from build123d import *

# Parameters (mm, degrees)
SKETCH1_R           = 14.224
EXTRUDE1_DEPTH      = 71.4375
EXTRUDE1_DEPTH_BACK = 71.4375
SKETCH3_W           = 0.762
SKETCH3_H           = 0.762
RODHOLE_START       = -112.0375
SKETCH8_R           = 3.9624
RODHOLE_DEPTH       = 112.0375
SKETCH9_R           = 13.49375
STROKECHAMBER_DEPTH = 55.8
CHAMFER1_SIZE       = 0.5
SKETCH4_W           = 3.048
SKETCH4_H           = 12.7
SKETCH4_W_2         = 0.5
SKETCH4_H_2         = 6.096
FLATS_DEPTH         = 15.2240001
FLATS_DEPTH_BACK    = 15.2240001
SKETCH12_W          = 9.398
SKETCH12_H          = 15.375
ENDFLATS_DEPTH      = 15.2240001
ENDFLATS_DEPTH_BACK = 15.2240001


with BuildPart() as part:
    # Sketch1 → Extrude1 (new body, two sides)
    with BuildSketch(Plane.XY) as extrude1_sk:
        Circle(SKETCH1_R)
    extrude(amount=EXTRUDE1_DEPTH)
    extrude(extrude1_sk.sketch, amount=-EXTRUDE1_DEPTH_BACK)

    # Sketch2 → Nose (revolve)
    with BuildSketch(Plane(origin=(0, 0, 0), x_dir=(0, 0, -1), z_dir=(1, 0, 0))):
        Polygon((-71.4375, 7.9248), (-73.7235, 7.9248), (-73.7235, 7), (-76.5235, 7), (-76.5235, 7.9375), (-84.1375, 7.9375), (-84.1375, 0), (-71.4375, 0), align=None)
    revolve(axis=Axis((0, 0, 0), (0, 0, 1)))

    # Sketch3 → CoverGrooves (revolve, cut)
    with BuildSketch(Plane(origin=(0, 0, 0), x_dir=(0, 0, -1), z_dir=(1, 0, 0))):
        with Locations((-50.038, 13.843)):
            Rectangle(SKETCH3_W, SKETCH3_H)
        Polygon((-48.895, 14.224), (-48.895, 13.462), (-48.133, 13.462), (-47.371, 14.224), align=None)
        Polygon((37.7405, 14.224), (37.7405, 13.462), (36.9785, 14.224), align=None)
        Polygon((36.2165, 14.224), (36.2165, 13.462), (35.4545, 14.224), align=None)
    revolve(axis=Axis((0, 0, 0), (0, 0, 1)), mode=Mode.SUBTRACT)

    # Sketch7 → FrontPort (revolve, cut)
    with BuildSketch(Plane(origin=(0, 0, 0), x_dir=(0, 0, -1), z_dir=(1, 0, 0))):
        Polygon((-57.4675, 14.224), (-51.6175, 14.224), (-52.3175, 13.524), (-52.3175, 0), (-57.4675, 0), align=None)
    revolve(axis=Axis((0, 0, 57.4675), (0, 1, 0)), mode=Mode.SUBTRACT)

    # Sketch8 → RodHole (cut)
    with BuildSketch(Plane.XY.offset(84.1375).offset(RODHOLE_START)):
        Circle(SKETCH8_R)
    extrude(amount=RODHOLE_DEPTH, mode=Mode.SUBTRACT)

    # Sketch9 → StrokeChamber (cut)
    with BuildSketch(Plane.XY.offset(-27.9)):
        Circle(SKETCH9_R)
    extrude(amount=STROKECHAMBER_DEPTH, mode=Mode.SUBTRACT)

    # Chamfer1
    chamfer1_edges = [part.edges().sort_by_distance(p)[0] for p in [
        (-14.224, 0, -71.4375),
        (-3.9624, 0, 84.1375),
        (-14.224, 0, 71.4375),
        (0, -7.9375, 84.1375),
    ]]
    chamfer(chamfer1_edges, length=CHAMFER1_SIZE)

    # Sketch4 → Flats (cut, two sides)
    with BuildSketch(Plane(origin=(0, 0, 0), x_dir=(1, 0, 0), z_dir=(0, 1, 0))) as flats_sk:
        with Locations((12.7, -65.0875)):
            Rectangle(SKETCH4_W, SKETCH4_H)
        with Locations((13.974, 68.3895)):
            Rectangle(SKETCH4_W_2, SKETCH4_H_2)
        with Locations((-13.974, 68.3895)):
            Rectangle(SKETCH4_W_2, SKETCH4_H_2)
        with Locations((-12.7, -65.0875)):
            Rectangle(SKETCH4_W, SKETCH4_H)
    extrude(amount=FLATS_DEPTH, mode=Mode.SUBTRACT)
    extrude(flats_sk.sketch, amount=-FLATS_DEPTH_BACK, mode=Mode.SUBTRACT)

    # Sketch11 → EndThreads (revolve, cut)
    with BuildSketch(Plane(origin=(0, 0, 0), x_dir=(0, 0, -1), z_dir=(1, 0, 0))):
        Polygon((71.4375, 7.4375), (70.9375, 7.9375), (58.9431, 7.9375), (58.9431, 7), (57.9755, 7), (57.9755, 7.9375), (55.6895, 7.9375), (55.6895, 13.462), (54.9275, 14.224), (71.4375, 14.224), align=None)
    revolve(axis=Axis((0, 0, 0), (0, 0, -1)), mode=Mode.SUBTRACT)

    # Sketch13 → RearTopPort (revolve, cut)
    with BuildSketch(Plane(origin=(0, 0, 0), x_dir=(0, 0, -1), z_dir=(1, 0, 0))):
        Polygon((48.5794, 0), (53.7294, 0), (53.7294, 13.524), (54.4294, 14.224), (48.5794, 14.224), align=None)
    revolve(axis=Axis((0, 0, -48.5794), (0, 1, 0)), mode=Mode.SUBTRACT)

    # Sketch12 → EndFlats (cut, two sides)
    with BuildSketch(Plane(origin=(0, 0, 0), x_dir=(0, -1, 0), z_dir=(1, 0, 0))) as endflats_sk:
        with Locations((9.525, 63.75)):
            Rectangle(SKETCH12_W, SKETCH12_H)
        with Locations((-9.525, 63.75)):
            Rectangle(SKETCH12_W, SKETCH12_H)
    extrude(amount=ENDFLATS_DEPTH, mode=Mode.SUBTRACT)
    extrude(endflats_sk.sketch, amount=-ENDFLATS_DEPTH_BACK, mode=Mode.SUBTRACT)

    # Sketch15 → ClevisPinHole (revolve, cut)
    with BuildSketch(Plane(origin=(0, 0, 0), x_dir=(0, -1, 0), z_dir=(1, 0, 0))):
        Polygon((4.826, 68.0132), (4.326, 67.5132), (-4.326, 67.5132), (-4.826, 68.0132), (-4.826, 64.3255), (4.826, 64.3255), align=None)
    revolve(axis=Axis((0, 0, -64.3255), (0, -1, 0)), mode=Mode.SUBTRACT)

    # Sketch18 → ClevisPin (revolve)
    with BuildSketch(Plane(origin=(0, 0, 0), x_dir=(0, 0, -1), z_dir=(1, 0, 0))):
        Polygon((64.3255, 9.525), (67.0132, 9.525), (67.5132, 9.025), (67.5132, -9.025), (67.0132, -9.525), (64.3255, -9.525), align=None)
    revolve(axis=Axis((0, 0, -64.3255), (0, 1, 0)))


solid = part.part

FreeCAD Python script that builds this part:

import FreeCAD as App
import Part
import Sketcher
from FreeCAD import Vector
Q = App.Units.Quantity


def edges_at(feature, points):
    """Names of the edges that pass closest to the given points."""
    edges = feature.Shape.Edges
    near = lambda p: min(range(len(edges)), key=lambda i: edges[i].distToShape(Part.Vertex(*p))[0])
    return sorted({f"Edge{near(p) + 1}" for p in points})

doc = App.newDocument("Part")
params = doc.addObject("Spreadsheet::Sheet", "Params")
for row, (alias, value) in enumerate([
    ("sketch1_diameter", "1.12 in"),
    ("pad1_length", "2.8125 in"),
    ("pad1_length2", "2.8125 in"),
    ("sketch2_height", "0.5 in"),
    ("sketch2_height2", "0.09 in"),
    ("sketch2_width", "0.3125 in"),
    ("sketch2_width2", "0.312 in"),
    ("revolution_angle", "360 deg"),
    ("sketch3_width", "0.03 in"),
    ("groove_angle", "360 deg"),
    ("sketch4_width", "0.56 in"),
    ("groove2_angle", "360 deg"),
    ("sketch5_diameter", "0.312 in"),
    ("pocket1_length", "112.0375 mm"),
    ("sketch6_diameter", "1.0625 in"),
    ("pocket2_length", "55.8 mm"),
    ("chamfer_size", "0.5 mm"),
    ("sketch7_height", "0.5 in"),
    ("sketch7_width", "0.12 in"),
    ("sketch7_height2", "0.24 in"),
    ("sketch8_height", "0.65 in"),
    ("sketch8_height2", "0.09 in"),
    ("groove3_angle", "360 deg"),
    ("sketch9_width", "0.56 in"),
    ("groove4_angle", "360 deg"),
    ("sketch10_width", "0.37 in"),
    ("sketch11_width", "0.38 in"),
    ("groove5_angle", "360 deg"),
    ("sketch12_width", "0.75 in"),
    ("revolution2_angle", "360 deg"),
], start=1):
    params.set(f"A{row}", alias)
    params.set(f"B{row}", "=" + value)
    params.setAlias(f"B{row}", alias)

body = doc.addObject("PartDesign::Body", "Body")

sketch1 = body.newObject("Sketcher::SketchObject", "Sketch")
sketch1.AttachmentSupport = (doc.getObject("XY_Plane"), [""])
sketch1.MapMode = "FlatFace"
sketch1.addGeometry(Part.Circle(Vector(0, 0, 0), Vector(0, 0, 1), 14.224), False)
sketch1.addConstraint(Sketcher.Constraint("Coincident", 0, 3, -1, 1))
sketch1.addConstraint(Sketcher.Constraint("Diameter", 0, Q("1.12 in")))
sketch1.setExpression("Constraints[1]", "Params.sketch1_diameter")
pad1 = body.newObject("PartDesign::Pad", "Pad")
pad1.Profile = sketch1
pad1.Type = "TwoLengths"
pad1.setExpression("Length", "Params.pad1_length")
pad1.setExpression("Length2", "Params.pad1_length2")

sketch2 = body.newObject("Sketcher::SketchObject", "Sketch001")
sketch2.AttachmentSupport = (doc.getObject("YZ_Plane"), [""])
sketch2.MapMode = "FlatFace"
sketch2.addGeometry(Part.LineSegment(Vector(7.9248, 71.4375, 0), Vector(7.9248, 73.7235, 0)), False)
sketch2.addGeometry(Part.LineSegment(Vector(7.9248, 73.7235, 0), Vector(7, 73.7235, 0)), False)
sketch2.addGeometry(Part.LineSegment(Vector(7, 73.7235, 0), Vector(7, 76.5235, 0)), False)
sketch2.addGeometry(Part.LineSegment(Vector(7, 76.5235, 0), Vector(7.9375, 76.5235, 0)), False)
sketch2.addGeometry(Part.LineSegment(Vector(7.9375, 76.5235, 0), Vector(7.9375, 84.1375, 0)), False)
sketch2.addGeometry(Part.LineSegment(Vector(7.9375, 84.1375, 0), Vector(0, 84.1375, 0)), False)
sketch2.addGeometry(Part.LineSegment(Vector(0, 84.1375, 0), Vector(0, 71.4375, 0)), False)
sketch2.addGeometry(Part.LineSegment(Vector(0, 71.4375, 0), Vector(7.9248, 71.4375, 0)), False)
sketch2.addConstraint(Sketcher.Constraint("Coincident", 0, 2, 1, 1))
sketch2.addConstraint(Sketcher.Constraint("Coincident", 1, 2, 2, 1))
sketch2.addConstraint(Sketcher.Constraint("Coincident", 2, 2, 3, 1))
sketch2.addConstraint(Sketcher.Constraint("Coincident", 3, 2, 4, 1))
sketch2.addConstraint(Sketcher.Constraint("Coincident", 4, 2, 5, 1))
sketch2.addConstraint(Sketcher.Constraint("Coincident", 5, 2, 6, 1))
sketch2.addConstraint(Sketcher.Constraint("Coincident", 6, 2, 7, 1))
sketch2.addConstraint(Sketcher.Constraint("Coincident", 7, 2, 0, 1))
sketch2.addConstraint(Sketcher.Constraint("Vertical", 0))
sketch2.addConstraint(Sketcher.Constraint("Horizontal", 1))
sketch2.addConstraint(Sketcher.Constraint("Vertical", 2))
sketch2.addConstraint(Sketcher.Constraint("Horizontal", 3))
sketch2.addConstraint(Sketcher.Constraint("Vertical", 4))
sketch2.addConstraint(Sketcher.Constraint("Horizontal", 5))
sketch2.addConstraint(Sketcher.Constraint("Vertical", 6))
sketch2.addConstraint(Sketcher.Constraint("Horizontal", 7))
sketch2.addConstraint(Sketcher.Constraint("PointOnObject", 5, 2, -2))
sketch2.addConstraint(Sketcher.Constraint("DistanceY", 6, 2, 6, 1, Q("0.5 in")))
sketch2.addConstraint(Sketcher.Constraint("DistanceY", 0, 1, 0, 2, Q("0.09 in")))
sketch2.addConstraint(Sketcher.Constraint("DistanceX", 5, 2, 5, 1, Q("0.3125 in")))
sketch2.addConstraint(Sketcher.Constraint("DistanceX", 7, 1, 7, 2, Q("0.312 in")))
sketch2.addConstraint(Sketcher.Constraint("DistanceY", -1, 1, 4, 2, Q("3.3125 in")))
sketch2.addConstraint(Sketcher.Constraint("DistanceX", 1, 2, 1, 1, 0.9248))
sketch2.addConstraint(Sketcher.Constraint("DistanceY", 2, 1, 2, 2, 2.8))
sketch2.setExpression("Constraints[17]", "Params.sketch2_height")
sketch2.setExpression("Constraints[18]", "Params.sketch2_height2")
sketch2.setExpression("Constraints[19]", "Params.sketch2_width")
sketch2.setExpression("Constraints[20]", "Params.sketch2_width2")
revolution = body.newObject("PartDesign::Revolution", "Revolution")
revolution.Profile = sketch2
revolution.ReferenceAxis = (sketch2, ["V_Axis"])
revolution.setExpression("Angle", "Params.revolution_angle")

sketch3 = body.newObject("Sketcher::SketchObject", "Sketch002")
sketch3.AttachmentSupport = (doc.getObject("YZ_Plane"), [""])
sketch3.MapMode = "FlatFace"
sketch3.addGeometry(Part.LineSegment(Vector(14.224, 50.419, 0), Vector(13.462, 50.419, 0)), False)
sketch3.addGeometry(Part.LineSegment(Vector(13.462, 50.419, 0), Vector(13.462, 49.657, 0)), False)
sketch3.addGeometry(Part.LineSegment(Vector(13.462, 49.657, 0), Vector(14.224, 49.657, 0)), False)
sketch3.addGeometry(Part.LineSegment(Vector(14.224, 49.657, 0), Vector(14.224, 50.419, 0)), False)
sketch3.addGeometry(Part.LineSegment(Vector(14.224, 48.895, 0), Vector(13.462, 48.895, 0)), False)
sketch3.addGeometry(Part.LineSegment(Vector(13.462, 48.895, 0), Vector(13.462, 48.133, 0)), False)
sketch3.addGeometry(Part.LineSegment(Vector(13.462, 48.133, 0), Vector(14.224, 47.371, 0)), False)
sketch3.addGeometry(Part.LineSegment(Vector(14.224, 47.371, 0), Vector(14.224, 48.895, 0)), False)
sketch3.addGeometry(Part.LineSegment(Vector(13.462, -37.7405, 0), Vector(14.224, -37.7405, 0)), False)
sketch3.addGeometry(Part.LineSegment(Vector(14.224, -37.7405, 0), Vector(14.224, -36.9785, 0)), False)
sketch3.addGeometry(Part.LineSegment(Vector(14.224, -36.9785, 0), Vector(13.462, -37.7405, 0)), False)
sketch3.addGeometry(Part.LineSegment(Vector(13.462, -36.2165, 0), Vector(14.224, -36.2165, 0)), False)
sketch3.addGeometry(Part.LineSegment(Vector(14.224, -36.2165, 0), Vector(14.224, -35.4545, 0)), False)
sketch3.addGeometry(Part.LineSegment(Vector(14.224, -35.4545, 0), Vector(13.462, -36.2165, 0)), False)
sketch3.addConstraint(Sketcher.Constraint("Coincident", 0, 2, 1, 1))
sketch3.addConstraint(Sketcher.Constraint("Coincident", 1, 2, 2, 1))
sketch3.addConstraint(Sketcher.Constraint("Coincident", 2, 2, 3, 1))
sketch3.addConstraint(Sketcher.Constraint("Coincident", 3, 2, 0, 1))
sketch3.addConstraint(Sketcher.Constraint("Coincident", 4, 2, 5, 1))
sketch3.addConstraint(Sketcher.Constraint("Coincident", 5, 2, 6, 1))
sketch3.addConstraint(Sketcher.Constraint("Coincident", 6, 2, 7, 1))
sketch3.addConstraint(Sketcher.Constraint("Coincident", 7, 2, 4, 1))
sketch3.addConstraint(Sketcher.Constraint("Coincident", 8, 2, 9, 1))
sketch3.addConstraint(Sketcher.Constraint("Coincident", 9, 2, 10, 1))
sketch3.addConstraint(Sketcher.Constraint("Coincident", 10, 2, 8, 1))
sketch3.addConstraint(Sketcher.Constraint("Coincident", 11, 2, 12, 1))
sketch3.addConstraint(Sketcher.Constraint("Coincident", 12, 2, 13, 1))
sketch3.addConstraint(Sketcher.Constraint("Coincident", 13, 2, 11, 1))
sketch3.addConstraint(Sketcher.Constraint("Horizontal", 0))
sketch3.addConstraint(Sketcher.Constraint("Vertical", 1))
sketch3.addConstraint(Sketcher.Constraint("Horizontal", 2))
sketch3.addConstraint(Sketcher.Constraint("Vertical", 3))
sketch3.addConstraint(Sketcher.Constraint("Horizontal", 4))
sketch3.addConstraint(Sketcher.Constraint("Vertical", 5))
sketch3.addConstraint(Sketcher.Constraint("Vertical", 7))
sketch3.addConstraint(Sketcher.Constraint("Horizontal", 8))
sketch3.addConstraint(Sketcher.Constraint("Vertical", 9))
sketch3.addConstraint(Sketcher.Constraint("Horizontal", 11))
sketch3.addConstraint(Sketcher.Constraint("Vertical", 12))
sketch3.addConstraint(Sketcher.Constraint("Perpendicular", 6, 10))
sketch3.addConstraint(Sketcher.Constraint("Parallel", 10, 13))
sketch3.addConstraint(Sketcher.Constraint("Vertical", 1, 2, 4, 2))
sketch3.addConstraint(Sketcher.Constraint("Vertical", 3, 2, 6, 2))
sketch3.addConstraint(Sketcher.Constraint("Vertical", 7, 2, 8, 2))
sketch3.addConstraint(Sketcher.Constraint("Vertical", 5, 2, 10, 2))
sketch3.addConstraint(Sketcher.Constraint("Vertical", 9, 2, 11, 2))
sketch3.addConstraint(Sketcher.Constraint("Vertical", 10, 2, 13, 2))
sketch3.addConstraint(Sketcher.Constraint("Equal", 11, 1))
sketch3.addConstraint(Sketcher.Constraint("Equal", 3, 5))
sketch3.addConstraint(Sketcher.Constraint("Equal", 5, 9))
sketch3.addConstraint(Sketcher.Constraint("DistanceX", 0, 2, 0, 1, Q("0.03 in")))
sketch3.addConstraint(Sketcher.Constraint("DistanceX", -1, 1, 0, 2, Q("0.53 in")))
sketch3.addConstraint(Sketcher.Constraint("DistanceY", 4, 2, 1, 2, Q("0.03 in")))
sketch3.addConstraint(Sketcher.Constraint("DistanceY", 9, 2, 11, 2, Q("0.03 in")))
sketch3.addConstraint(Sketcher.Constraint("DistanceY", -1, 1, 0, 2, Q("1.985 in")))
sketch3.addConstraint(Sketcher.Constraint("DistanceY", 8, 2, -1, 1, 37.7405))
sketch3.setExpression("Constraints[36]", "Params.sketch3_width")
groove = body.newObject("PartDesign::Groove", "Groove")
groove.Profile = sketch3
groove.ReferenceAxis = (sketch3, ["V_Axis"])
groove.setExpression("Angle", "Params.groove_angle")

sketch4 = body.newObject("Sketcher::SketchObject", "Sketch003")
sketch4.AttachmentSupport = (doc.getObject("YZ_Plane"), [""])
sketch4.MapMode = "FlatFace"
sketch4.addGeometry(Part.LineSegment(Vector(14.224, 51.6175, 0), Vector(14.224, 57.4675, 0)), False)
sketch4.addGeometry(Part.LineSegment(Vector(14.224, 57.4675, 0), Vector(0, 57.4675, 0)), False)
sketch4.addGeometry(Part.LineSegment(Vector(0, 57.4675, 0), Vector(0, 52.3175, 0)), False)
sketch4.addGeometry(Part.LineSegment(Vector(0, 52.3175, 0), Vector(13.524, 52.3175, 0)), False)
sketch4.addGeometry(Part.LineSegment(Vector(13.524, 52.3175, 0), Vector(14.224, 51.6175, 0)), False)
sketch4.addGeometry(Part.LineSegment(Vector(0, 57.4675, 0), Vector(14.224, 57.4675, 0)), True)
sketch4.addConstraint(Sketcher.Constraint("Coincident", 0, 2, 1, 1))
sketch4.addConstraint(Sketcher.Constraint("Coincident", 1, 2, 2, 1))
sketch4.addConstraint(Sketcher.Constraint("Coincident", 2, 2, 3, 1))
sketch4.addConstraint(Sketcher.Constraint("Coincident", 3, 2, 4, 1))
sketch4.addConstraint(Sketcher.Constraint("Coincident", 4, 2, 0, 1))
sketch4.addConstraint(Sketcher.Constraint("Vertical", 0))
sketch4.addConstraint(Sketcher.Constraint("Horizontal", 1))
sketch4.addConstraint(Sketcher.Constraint("Vertical", 2))
sketch4.addConstraint(Sketcher.Constraint("Horizontal", 3))
sketch4.addConstraint(Sketcher.Constraint("Horizontal", 5))
sketch4.addConstraint(Sketcher.Constraint("Coincident", 5, 1, 1, 2))
sketch4.addConstraint(Sketcher.Constraint("PointOnObject", 1, 2, -2))
sketch4.addConstraint(Sketcher.Constraint("Vertical", 4, 2, 5, 2))
sketch4.addConstraint(Sketcher.Constraint("Angle", 4, Q("-45 deg")))
sketch4.addConstraint(Sketcher.Constraint("DistanceX", 1, 2, 1, 1, Q("0.56 in")))
sketch4.addConstraint(Sketcher.Constraint("DistanceX", 3, 1, 3, 2, 13.524))
sketch4.addConstraint(Sketcher.Constraint("DistanceY", 0, 1, 0, 2, 5.85))
sketch4.addConstraint(Sketcher.Constraint("DistanceY", -1, 1, 0, 2, Q("2.2625 in")))
sketch4.setExpression("Constraints[14]", "Params.sketch4_width")
groove2 = body.newObject("PartDesign::Groove", "Groove001")
groove2.Profile = sketch4
groove2.ReferenceAxis = (sketch4, ["Axis0"])
groove2.setExpression("Angle", "Params.groove2_angle")

sketch5 = body.newObject("Sketcher::SketchObject", "Sketch004")
sketch5.AttachmentSupport = (doc.getObject("XY_Plane"), [""])
sketch5.MapMode = "FlatFace"
sketch5.AttachmentOffset = App.Placement(Vector(0, 0, -27.9), App.Rotation())
sketch5.addGeometry(Part.Circle(Vector(0, 0, 0), Vector(0, 0, 1), 3.9624), False)
sketch5.addConstraint(Sketcher.Constraint("Coincident", 0, 3, -1, 1))
sketch5.addConstraint(Sketcher.Constraint("Diameter", 0, Q("0.312 in")))
sketch5.setExpression("Constraints[1]", "Params.sketch5_diameter")
pocket1 = body.newObject("PartDesign::Pocket", "Pocket")
pocket1.Profile = sketch5
pocket1.setExpression("Length", "Params.pocket1_length")
pocket1.Reversed = True

sketch6 = body.newObject("Sketcher::SketchObject", "Sketch005")
sketch6.AttachmentSupport = (doc.getObject("XY_Plane"), [""])
sketch6.MapMode = "FlatFace"
sketch6.AttachmentOffset = App.Placement(Vector(0, 0, -27.9), App.Rotation())
sketch6.addGeometry(Part.Circle(Vector(0, 0, 0), Vector(0, 0, 1), 13.49375), False)
sketch6.addConstraint(Sketcher.Constraint("Coincident", 0, 3, -1, 1))
sketch6.addConstraint(Sketcher.Constraint("Diameter", 0, Q("1.0625 in")))
sketch6.setExpression("Constraints[1]", "Params.sketch6_diameter")
pocket2 = body.newObject("PartDesign::Pocket", "Pocket001")
pocket2.Profile = sketch6
pocket2.setExpression("Length", "Params.pocket2_length")
pocket2.Reversed = True
doc.recompute()

chamfer = body.newObject("PartDesign::Chamfer", "Chamfer")
chamfer.Base = (pocket2, edges_at(pocket2, [
    (-14.224, 0, -71.438),
    (-3.962, 0, 84.138),
    (-14.224, 0, 71.438),
    (0, -7.938, 84.138),
]))
chamfer.setExpression("Size", "Params.chamfer_size")

sketch7 = body.newObject("Sketcher::SketchObject", "Sketch006")
sketch7.AttachmentSupport = (doc.getObject("XZ_Plane"), [""])
sketch7.MapMode = "FlatFace"
sketch7.addGeometry(Part.LineSegment(Vector(11.176, 58.7375, 0), Vector(11.176, 71.4375, 0)), False)
sketch7.addGeometry(Part.LineSegment(Vector(11.176, 71.4375, 0), Vector(14.224, 71.4375, 0)), False)
sketch7.addGeometry(Part.LineSegment(Vector(14.224, 71.4375, 0), Vector(14.224, 58.7375, 0)), False)
sketch7.addGeometry(Part.LineSegment(Vector(14.224, 58.7375, 0), Vector(11.176, 58.7375, 0)), False)
sketch7.addGeometry(Part.LineSegment(Vector(13.724, -71.4375, 0), Vector(13.724, -65.3415, 0)), False)
sketch7.addGeometry(Part.LineSegment(Vector(13.724, -65.3415, 0), Vector(14.224, -65.3415, 0)), False)
sketch7.addGeometry(Part.LineSegment(Vector(14.224, -65.3415, 0), Vector(14.224, -71.4375, 0)), False)
sketch7.addGeometry(Part.LineSegment(Vector(14.224, -71.4375, 0), Vector(13.724, -71.4375, 0)), False)
sketch7.addGeometry(Part.LineSegment(Vector(-14.224, -71.4375, 0), Vector(-14.224, -65.3415, 0)), False)
sketch7.addGeometry(Part.LineSegment(Vector(-14.224, -65.3415, 0), Vector(-13.724, -65.3415, 0)), False)
sketch7.addGeometry(Part.LineSegment(Vector(-13.724, -65.3415, 0), Vector(-13.724, -71.4375, 0)), False)
sketch7.addGeometry(Part.LineSegment(Vector(-13.724, -71.4375, 0), Vector(-14.224, -71.4375, 0)), False)
sketch7.addGeometry(Part.LineSegment(Vector(-14.224, 58.7375, 0), Vector(-14.224, 71.4375, 0)), False)
sketch7.addGeometry(Part.LineSegment(Vector(-14.224, 71.4375, 0), Vector(-11.176, 71.4375, 0)), False)
sketch7.addGeometry(Part.LineSegment(Vector(-11.176, 71.4375, 0), Vector(-11.176, 58.7375, 0)), False)
sketch7.addGeometry(Part.LineSegment(Vector(-11.176, 58.7375, 0), Vector(-14.224, 58.7375, 0)), False)
sketch7.addConstraint(Sketcher.Constraint("Coincident", 0, 2, 1, 1))
sketch7.addConstraint(Sketcher.Constraint("Coincident", 1, 2, 2, 1))
sketch7.addConstraint(Sketcher.Constraint("Coincident", 2, 2, 3, 1))
sketch7.addConstraint(Sketcher.Constraint("Coincident", 3, 2, 0, 1))
sketch7.addConstraint(Sketcher.Constraint("Coincident", 4, 2, 5, 1))
sketch7.addConstraint(Sketcher.Constraint("Coincident", 5, 2, 6, 1))
sketch7.addConstraint(Sketcher.Constraint("Coincident", 6, 2, 7, 1))
sketch7.addConstraint(Sketcher.Constraint("Coincident", 7, 2, 4, 1))
sketch7.addConstraint(Sketcher.Constraint("Coincident", 8, 2, 9, 1))
sketch7.addConstraint(Sketcher.Constraint("Coincident", 9, 2, 10, 1))
sketch7.addConstraint(Sketcher.Constraint("Coincident", 10, 2, 11, 1))
sketch7.addConstraint(Sketcher.Constraint("Coincident", 11, 2, 8, 1))
sketch7.addConstraint(Sketcher.Constraint("Coincident", 12, 2, 13, 1))
sketch7.addConstraint(Sketcher.Constraint("Coincident", 13, 2, 14, 1))
sketch7.addConstraint(Sketcher.Constraint("Coincident", 14, 2, 15, 1))
sketch7.addConstraint(Sketcher.Constraint("Coincident", 15, 2, 12, 1))
sketch7.addConstraint(Sketcher.Constraint("Vertical", 0))
sketch7.addConstraint(Sketcher.Constraint("Horizontal", 1))
sketch7.addConstraint(Sketcher.Constraint("Vertical", 2))
sketch7.addConstraint(Sketcher.Constraint("Horizontal", 3))
sketch7.addConstraint(Sketcher.Constraint("Vertical", 4))
sketch7.addConstraint(Sketcher.Constraint("Horizontal", 5))
sketch7.addConstraint(Sketcher.Constraint("Vertical", 6))
sketch7.addConstraint(Sketcher.Constraint("Horizontal", 7))
sketch7.addConstraint(Sketcher.Constraint("Vertical", 8))
sketch7.addConstraint(Sketcher.Constraint("Horizontal", 9))
sketch7.addConstraint(Sketcher.Constraint("Vertical", 10))
sketch7.addConstraint(Sketcher.Constraint("Horizontal", 11))
sketch7.addConstraint(Sketcher.Constraint("Vertical", 12))
sketch7.addConstraint(Sketcher.Constraint("Horizontal", 13))
sketch7.addConstraint(Sketcher.Constraint("Vertical", 14))
sketch7.addConstraint(Sketcher.Constraint("Horizontal", 15))
sketch7.addConstraint(Sketcher.Constraint("Symmetric", 1, 2, 11, 2, -1, 1))
sketch7.addConstraint(Sketcher.Constraint("Symmetric", 6, 2, 12, 2, -1, 1))
sketch7.addConstraint(Sketcher.Constraint("Symmetric", 5, 2, 8, 2, -2))
sketch7.addConstraint(Sketcher.Constraint("Symmetric", 7, 2, 10, 2, -2))
sketch7.addConstraint(Sketcher.Constraint("Symmetric", 3, 2, 14, 2, -2))
sketch7.addConstraint(Sketcher.Constraint("DistanceY", 0, 1, 0, 2, Q("0.5 in")))
sketch7.addConstraint(Sketcher.Constraint("DistanceX", 8, 2, 3, 2, Q("1 in")))
sketch7.addConstraint(Sketcher.Constraint("DistanceX", 1, 1, 1, 2, Q("0.12 in")))
sketch7.addConstraint(Sketcher.Constraint("DistanceY", 4, 1, 4, 2, Q("0.24 in")))
sketch7.addConstraint(Sketcher.Constraint("DistanceY", -1, 1, 0, 2, Q("2.8125 in")))
sketch7.addConstraint(Sketcher.Constraint("DistanceX", 5, 1, 5, 2, 0.5))
sketch7.setExpression("Constraints[37]", "Params.sketch7_height")
sketch7.setExpression("Constraints[39]", "Params.sketch7_width")
sketch7.setExpression("Constraints[40]", "Params.sketch7_height2")
pocket3 = body.newObject("PartDesign::Pocket", "Pocket002")
pocket3.Profile = sketch7
pocket3.Type = "ThroughAll"
pocket3.Midplane = True

sketch8 = body.newObject("Sketcher::SketchObject", "Sketch007")
sketch8.AttachmentSupport = (doc.getObject("YZ_Plane"), [""])
sketch8.MapMode = "FlatFace"
sketch8.addGeometry(Part.LineSegment(Vector(7.9375, -70.9375, 0), Vector(7.4375, -71.4375, 0)), False)
sketch8.addGeometry(Part.LineSegment(Vector(7.4375, -71.4375, 0), Vector(14.224, -71.4375, 0)), False)
sketch8.addGeometry(Part.LineSegment(Vector(14.224, -71.4375, 0), Vector(14.224, -54.9275, 0)), False)
sketch8.addGeometry(Part.LineSegment(Vector(14.224, -54.9275, 0), Vector(13.462, -55.6895, 0)), False)
sketch8.addGeometry(Part.LineSegment(Vector(13.462, -55.6895, 0), Vector(7.9375, -55.6895, 0)), False)
sketch8.addGeometry(Part.LineSegment(Vector(7.9375, -55.6895, 0), Vector(7.9375, -57.9755, 0)), False)
sketch8.addGeometry(Part.LineSegment(Vector(7.9375, -57.9755, 0), Vector(7, -57.9755, 0)), False)
sketch8.addGeometry(Part.LineSegment(Vector(7, -57.9755, 0), Vector(7, -58.9431, 0)), False)
sketch8.addGeometry(Part.LineSegment(Vector(7, -58.9431, 0), Vector(7.9375, -58.9431, 0)), False)
sketch8.addGeometry(Part.LineSegment(Vector(7.9375, -58.9431, 0), Vector(7.9375, -70.9375, 0)), False)
sketch8.addConstraint(Sketcher.Constraint("Coincident", 0, 2, 1, 1))
sketch8.addConstraint(Sketcher.Constraint("Coincident", 1, 2, 2, 1))
sketch8.addConstraint(Sketcher.Constraint("Coincident", 2, 2, 3, 1))
sketch8.addConstraint(Sketcher.Constraint("Coincident", 3, 2, 4, 1))
sketch8.addConstraint(Sketcher.Constraint("Coincident", 4, 2, 5, 1))
sketch8.addConstraint(Sketcher.Constraint("Coincident", 5, 2, 6, 1))
sketch8.addConstraint(Sketcher.Constraint("Coincident", 6, 2, 7, 1))
sketch8.addConstraint(Sketcher.Constraint("Coincident", 7, 2, 8, 1))
sketch8.addConstraint(Sketcher.Constraint("Coincident", 8, 2, 9, 1))
sketch8.addConstraint(Sketcher.Constraint("Coincident", 9, 2, 0, 1))
sketch8.addConstraint(Sketcher.Constraint("Horizontal", 1))
sketch8.addConstraint(Sketcher.Constraint("Vertical", 2))
sketch8.addConstraint(Sketcher.Constraint("Horizontal", 4))
sketch8.addConstraint(Sketcher.Constraint("Vertical", 5))
sketch8.addConstraint(Sketcher.Constraint("Horizontal", 6))
sketch8.addConstraint(Sketcher.Constraint("Vertical", 7))
sketch8.addConstraint(Sketcher.Constraint("Horizontal", 8))
sketch8.addConstraint(Sketcher.Constraint("Vertical", 9))
sketch8.addConstraint(Sketcher.Constraint("Parallel", 0, 3))
sketch8.addConstraint(Sketcher.Constraint("Vertical", 5, 2, 8, 2))
sketch8.addConstraint(Sketcher.Constraint("Angle", 0, Q("-135 deg")))
sketch8.addConstraint(Sketcher.Constraint("DistanceY", 2, 1, 2, 2, Q("0.65 in")))
sketch8.addConstraint(Sketcher.Constraint("DistanceY", 5, 2, 5, 1, Q("0.09 in")))
sketch8.addConstraint(Sketcher.Constraint("DistanceX", -1, 1, 1, 2, Q("0.56 in")))
sketch8.addConstraint(Sketcher.Constraint("DistanceX", -1, 1, 3, 2, Q("0.53 in")))
sketch8.addConstraint(Sketcher.Constraint("DistanceX", 4, 2, 4, 1, Q("0.2175 in")))
sketch8.addConstraint(Sketcher.Constraint("DistanceY", 0, 2, -1, 1, Q("2.8125 in")))
sketch8.addConstraint(Sketcher.Constraint("DistanceX", 1, 1, 1, 2, 6.7865))
sketch8.addConstraint(Sketcher.Constraint("DistanceX", 6, 2, 6, 1, 0.9375))
sketch8.addConstraint(Sketcher.Constraint("DistanceY", 7, 2, 7, 1, 0.9676))
sketch8.setExpression("Constraints[21]", "Params.sketch8_height")
sketch8.setExpression("Constraints[22]", "Params.sketch8_height2")
groove3 = body.newObject("PartDesign::Groove", "Groove002")
groove3.Profile = sketch8
groove3.ReferenceAxis = (sketch8, ["V_Axis"])
groove3.setExpression("Angle", "Params.groove3_angle")

sketch9 = body.newObject("Sketcher::SketchObject", "Sketch008")
sketch9.AttachmentSupport = (doc.getObject("YZ_Plane"), [""])
sketch9.MapMode = "FlatFace"
sketch9.addGeometry(Part.LineSegment(Vector(0, -48.5794, 0), Vector(0, -53.7294, 0)), False)
sketch9.addGeometry(Part.LineSegment(Vector(0, -53.7294, 0), Vector(13.524, -53.7294, 0)), False)
sketch9.addGeometry(Part.LineSegment(Vector(13.524, -53.7294, 0), Vector(14.224, -54.4294, 0)), False)
sketch9.addGeometry(Part.LineSegment(Vector(14.224, -54.4294, 0), Vector(14.224, -48.5794, 0)), False)
sketch9.addGeometry(Part.LineSegment(Vector(14.224, -48.5794, 0), Vector(0, -48.5794, 0)), False)
sketch9.addGeometry(Part.LineSegment(Vector(0, -48.5794, 0), Vector(14.224, -48.5794, 0)), True)
sketch9.addConstraint(Sketcher.Constraint("Coincident", 0, 2, 1, 1))
sketch9.addConstraint(Sketcher.Constraint("Coincident", 1, 2, 2, 1))
sketch9.addConstraint(Sketcher.Constraint("Coincident", 2, 2, 3, 1))
sketch9.addConstraint(Sketcher.Constraint("Coincident", 3, 2, 4, 1))
sketch9.addConstraint(Sketcher.Constraint("Coincident", 4, 2, 0, 1))
sketch9.addConstraint(Sketcher.Constraint("Vertical", 0))
sketch9.addConstraint(Sketcher.Constraint("Horizontal", 1))
sketch9.addConstraint(Sketcher.Constraint("Vertical", 3))
sketch9.addConstraint(Sketcher.Constraint("Horizontal", 4))
sketch9.addConstraint(Sketcher.Constraint("Horizontal", 5))
sketch9.addConstraint(Sketcher.Constraint("Coincident", 5, 1, 4, 2))
sketch9.addConstraint(Sketcher.Constraint("PointOnObject", 0, 2, -2))
sketch9.addConstraint(Sketcher.Constraint("Vertical", 2, 2, 5, 2))
sketch9.addConstraint(Sketcher.Constraint("Angle", 2, Q("-45 deg")))
sketch9.addConstraint(Sketcher.Constraint("DistanceX", 4, 2, 4, 1, Q("0.56 in")))
sketch9.addConstraint(Sketcher.Constraint("DistanceX", 1, 1, 1, 2, 13.524))
sketch9.addConstraint(Sketcher.Constraint("DistanceY", 0, 2, 0, 1, 5.15))
sketch9.addConstraint(Sketcher.Constraint("DistanceY", 0, 2, -1, 1, 53.7294))
sketch9.setExpression("Constraints[14]", "Params.sketch9_width")
groove4 = body.newObject("PartDesign::Groove", "Groove003")
groove4.Profile = sketch9
groove4.ReferenceAxis = (sketch9, ["Axis0"])
groove4.setExpression("Angle", "Params.groove4_angle")

sketch10 = body.newObject("Sketcher::SketchObject", "Sketch009")
sketch10.AttachmentSupport = (doc.getObject("YZ_Plane"), [""])
sketch10.MapMode = "FlatFace"
sketch10.addGeometry(Part.LineSegment(Vector(-4.826, -71.4375, 0), Vector(-4.826, -56.0625, 0)), False)
sketch10.addGeometry(Part.LineSegment(Vector(-4.826, -56.0625, 0), Vector(-14.224, -56.0625, 0)), False)
sketch10.addGeometry(Part.LineSegment(Vector(-14.224, -56.0625, 0), Vector(-14.224, -71.4375, 0)), False)
sketch10.addGeometry(Part.LineSegment(Vector(-14.224, -71.4375, 0), Vector(-4.826, -71.4375, 0)), False)
sketch10.addGeometry(Part.LineSegment(Vector(14.224, -71.4375, 0), Vector(14.224, -56.0625, 0)), False)
sketch10.addGeometry(Part.LineSegment(Vector(14.224, -56.0625, 0), Vector(4.826, -56.0625, 0)), False)
sketch10.addGeometry(Part.LineSegment(Vector(4.826, -56.0625, 0), Vector(4.826, -71.4375, 0)), False)
sketch10.addGeometry(Part.LineSegment(Vector(4.826, -71.4375, 0), Vector(14.224, -71.4375, 0)), False)
sketch10.addConstraint(Sketcher.Constraint("Coincident", 0, 2, 1, 1))
sketch10.addConstraint(Sketcher.Constraint("Coincident", 1, 2, 2, 1))
sketch10.addConstraint(Sketcher.Constraint("Coincident", 2, 2, 3, 1))
sketch10.addConstraint(Sketcher.Constraint("Coincident", 3, 2, 0, 1))
sketch10.addConstraint(Sketcher.Constraint("Coincident", 4, 2, 5, 1))
sketch10.addConstraint(Sketcher.Constraint("Coincident", 5, 2, 6, 1))
sketch10.addConstraint(Sketcher.Constraint("Coincident", 6, 2, 7, 1))
sketch10.addConstraint(Sketcher.Constraint("Coincident", 7, 2, 4, 1))
sketch10.addConstraint(Sketcher.Constraint("Vertical", 0))
sketch10.addConstraint(Sketcher.Constraint("Horizontal", 1))
sketch10.addConstraint(Sketcher.Constraint("Vertical", 2))
sketch10.addConstraint(Sketcher.Constraint("Horizontal", 3))
sketch10.addConstraint(Sketcher.Constraint("Vertical", 4))
sketch10.addConstraint(Sketcher.Constraint("Horizontal", 5))
sketch10.addConstraint(Sketcher.Constraint("Vertical", 6))
sketch10.addConstraint(Sketcher.Constraint("Horizontal", 7))
sketch10.addConstraint(Sketcher.Constraint("Symmetric", 1, 2, 4, 2, -2))
sketch10.addConstraint(Sketcher.Constraint("Symmetric", 3, 2, 6, 2, -2))
sketch10.addConstraint(Sketcher.Constraint("DistanceX", 1, 2, 1, 1, Q("0.37 in")))
sketch10.addConstraint(Sketcher.Constraint("DistanceX", 0, 2, -1, 1, Q("0.19 in")))
sketch10.addConstraint(Sketcher.Constraint("DistanceY", 2, 2, -1, 1, Q("2.8125 in")))
sketch10.addConstraint(Sketcher.Constraint("DistanceY", 0, 1, 0, 2, 15.375))
sketch10.setExpression("Constraints[18]", "Params.sketch10_width")
pocket4 = body.newObject("PartDesign::Pocket", "Pocket003")
pocket4.Profile = sketch10
pocket4.Type = "ThroughAll"
pocket4.Midplane = True

sketch11 = body.newObject("Sketcher::SketchObject", "Sketch010")
sketch11.AttachmentSupport = (doc.getObject("YZ_Plane"), [""])
sketch11.MapMode = "FlatFace"
sketch11.addGeometry(Part.LineSegment(Vector(-4.826, -68.0132, 0), Vector(-4.326, -67.5132, 0)), False)
sketch11.addGeometry(Part.LineSegment(Vector(-4.326, -67.5132, 0), Vector(4.326, -67.5132, 0)), False)
sketch11.addGeometry(Part.LineSegment(Vector(4.326, -67.5132, 0), Vector(4.826, -68.0132, 0)), False)
sketch11.addGeometry(Part.LineSegment(Vector(4.826, -68.0132, 0), Vector(4.826, -64.3255, 0)), False)
sketch11.addGeometry(Part.LineSegment(Vector(4.826, -64.3255, 0), Vector(-4.826, -64.3255, 0)), False)
sketch11.addGeometry(Part.LineSegment(Vector(-4.826, -64.3255, 0), Vector(-4.826, -68.0132, 0)), False)
sketch11.addGeometry(Part.LineSegment(Vector(4.826, -64.3255, 0), Vector(-4.826, -64.3255, 0)), True)
sketch11.addConstraint(Sketcher.Constraint("Coincident", 0, 2, 1, 1))
sketch11.addConstraint(Sketcher.Constraint("Coincident", 1, 2, 2, 1))
sketch11.addConstraint(Sketcher.Constraint("Coincident", 2, 2, 3, 1))
sketch11.addConstraint(Sketcher.Constraint("Coincident", 3, 2, 4, 1))
sketch11.addConstraint(Sketcher.Constraint("Coincident", 4, 2, 5, 1))
sketch11.addConstraint(Sketcher.Constraint("Coincident", 5, 2, 0, 1))
sketch11.addConstraint(Sketcher.Constraint("Horizontal", 1))
sketch11.addConstraint(Sketcher.Constraint("Vertical", 3))
sketch11.addConstraint(Sketcher.Constraint("Horizontal", 4))
sketch11.addConstraint(Sketcher.Constraint("Vertical", 5))
sketch11.addConstraint(Sketcher.Constraint("Horizontal", 6))
sketch11.addConstraint(Sketcher.Constraint("Coincident", 6, 1, 3, 2))
sketch11.addConstraint(Sketcher.Constraint("Symmetric", 2, 2, 5, 2, -2))
sketch11.addConstraint(Sketcher.Constraint("Perpendicular", 0, 2))
sketch11.addConstraint(Sketcher.Constraint("Vertical", 5, 2, 6, 2))
sketch11.addConstraint(Sketcher.Constraint("Equal", 0, 2))
sketch11.addConstraint(Sketcher.Constraint("DistanceX", 4, 2, 4, 1, Q("0.38 in")))
sketch11.addConstraint(Sketcher.Constraint("DistanceY", 0, 2, -1, 1, Q("2.658 in")))
sketch11.addConstraint(Sketcher.Constraint("DistanceX", 1, 1, 1, 2, 8.652))
sketch11.addConstraint(Sketcher.Constraint("DistanceY", 3, 1, 3, 2, 3.6877))
sketch11.setExpression("Constraints[16]", "Params.sketch11_width")
groove5 = body.newObject("PartDesign::Groove", "Groove004")
groove5.Profile = sketch11
groove5.ReferenceAxis = (sketch11, ["Axis0"])
groove5.setExpression("Angle", "Params.groove5_angle")

sketch12 = body.newObject("Sketcher::SketchObject", "Sketch011")
sketch12.AttachmentSupport = (doc.getObject("YZ_Plane"), [""])
sketch12.MapMode = "FlatFace"
sketch12.addGeometry(Part.LineSegment(Vector(9.525, -67.0132, 0), Vector(9.525, -64.3255, 0)), False)
sketch12.addGeometry(Part.LineSegment(Vector(9.525, -64.3255, 0), Vector(-9.525, -64.3255, 0)), False)
sketch12.addGeometry(Part.LineSegment(Vector(-9.525, -64.3255, 0), Vector(-9.525, -67.0132, 0)), False)
sketch12.addGeometry(Part.LineSegment(Vector(-9.525, -67.0132, 0), Vector(-9.025, -67.5132, 0)), False)
sketch12.addGeometry(Part.LineSegment(Vector(-9.025, -67.5132, 0), Vector(9.025, -67.5132, 0)), False)
sketch12.addGeometry(Part.LineSegment(Vector(9.025, -67.5132, 0), Vector(9.525, -67.0132, 0)), False)
sketch12.addGeometry(Part.LineSegment(Vector(-9.525, -64.3255, 0), Vector(9.525, -64.3255, 0)), True)
sketch12.addConstraint(Sketcher.Constraint("Coincident", 0, 2, 1, 1))
sketch12.addConstraint(Sketcher.Constraint("Coincident", 1, 2, 2, 1))
sketch12.addConstraint(Sketcher.Constraint("Coincident", 2, 2, 3, 1))
sketch12.addConstraint(Sketcher.Constraint("Coincident", 3, 2, 4, 1))
sketch12.addConstraint(Sketcher.Constraint("Coincident", 4, 2, 5, 1))
sketch12.addConstraint(Sketcher.Constraint("Coincident", 5, 2, 0, 1))
sketch12.addConstraint(Sketcher.Constraint("Vertical", 0))
sketch12.addConstraint(Sketcher.Constraint("Horizontal", 1))
sketch12.addConstraint(Sketcher.Constraint("Vertical", 2))
sketch12.addConstraint(Sketcher.Constraint("Horizontal", 4))
sketch12.addConstraint(Sketcher.Constraint("Horizontal", 6))
sketch12.addConstraint(Sketcher.Constraint("Coincident", 6, 1, 1, 2))
sketch12.addConstraint(Sketcher.Constraint("Symmetric", 2, 2, 5, 2, -2))
sketch12.addConstraint(Sketcher.Constraint("Perpendicular", 3, 5))
sketch12.addConstraint(Sketcher.Constraint("Vertical", 5, 2, 6, 2))
sketch12.addConstraint(Sketcher.Constraint("Equal", 3, 5))
sketch12.addConstraint(Sketcher.Constraint("DistanceX", 1, 2, 1, 1, Q("0.75 in")))
sketch12.addConstraint(Sketcher.Constraint("DistanceY", 3, 2, -1, 1, Q("2.658 in")))
sketch12.addConstraint(Sketcher.Constraint("DistanceX", 4, 1, 4, 2, 18.05))
sketch12.addConstraint(Sketcher.Constraint("DistanceY", 0, 1, 0, 2, 2.6877))
sketch12.setExpression("Constraints[16]", "Params.sketch12_width")
revolution2 = body.newObject("PartDesign::Revolution", "Revolution001")
revolution2.Profile = sketch12
revolution2.ReferenceAxis = (sketch12, ["Axis0"])
revolution2.setExpression("Angle", "Params.revolution2_angle")

doc.recompute()
